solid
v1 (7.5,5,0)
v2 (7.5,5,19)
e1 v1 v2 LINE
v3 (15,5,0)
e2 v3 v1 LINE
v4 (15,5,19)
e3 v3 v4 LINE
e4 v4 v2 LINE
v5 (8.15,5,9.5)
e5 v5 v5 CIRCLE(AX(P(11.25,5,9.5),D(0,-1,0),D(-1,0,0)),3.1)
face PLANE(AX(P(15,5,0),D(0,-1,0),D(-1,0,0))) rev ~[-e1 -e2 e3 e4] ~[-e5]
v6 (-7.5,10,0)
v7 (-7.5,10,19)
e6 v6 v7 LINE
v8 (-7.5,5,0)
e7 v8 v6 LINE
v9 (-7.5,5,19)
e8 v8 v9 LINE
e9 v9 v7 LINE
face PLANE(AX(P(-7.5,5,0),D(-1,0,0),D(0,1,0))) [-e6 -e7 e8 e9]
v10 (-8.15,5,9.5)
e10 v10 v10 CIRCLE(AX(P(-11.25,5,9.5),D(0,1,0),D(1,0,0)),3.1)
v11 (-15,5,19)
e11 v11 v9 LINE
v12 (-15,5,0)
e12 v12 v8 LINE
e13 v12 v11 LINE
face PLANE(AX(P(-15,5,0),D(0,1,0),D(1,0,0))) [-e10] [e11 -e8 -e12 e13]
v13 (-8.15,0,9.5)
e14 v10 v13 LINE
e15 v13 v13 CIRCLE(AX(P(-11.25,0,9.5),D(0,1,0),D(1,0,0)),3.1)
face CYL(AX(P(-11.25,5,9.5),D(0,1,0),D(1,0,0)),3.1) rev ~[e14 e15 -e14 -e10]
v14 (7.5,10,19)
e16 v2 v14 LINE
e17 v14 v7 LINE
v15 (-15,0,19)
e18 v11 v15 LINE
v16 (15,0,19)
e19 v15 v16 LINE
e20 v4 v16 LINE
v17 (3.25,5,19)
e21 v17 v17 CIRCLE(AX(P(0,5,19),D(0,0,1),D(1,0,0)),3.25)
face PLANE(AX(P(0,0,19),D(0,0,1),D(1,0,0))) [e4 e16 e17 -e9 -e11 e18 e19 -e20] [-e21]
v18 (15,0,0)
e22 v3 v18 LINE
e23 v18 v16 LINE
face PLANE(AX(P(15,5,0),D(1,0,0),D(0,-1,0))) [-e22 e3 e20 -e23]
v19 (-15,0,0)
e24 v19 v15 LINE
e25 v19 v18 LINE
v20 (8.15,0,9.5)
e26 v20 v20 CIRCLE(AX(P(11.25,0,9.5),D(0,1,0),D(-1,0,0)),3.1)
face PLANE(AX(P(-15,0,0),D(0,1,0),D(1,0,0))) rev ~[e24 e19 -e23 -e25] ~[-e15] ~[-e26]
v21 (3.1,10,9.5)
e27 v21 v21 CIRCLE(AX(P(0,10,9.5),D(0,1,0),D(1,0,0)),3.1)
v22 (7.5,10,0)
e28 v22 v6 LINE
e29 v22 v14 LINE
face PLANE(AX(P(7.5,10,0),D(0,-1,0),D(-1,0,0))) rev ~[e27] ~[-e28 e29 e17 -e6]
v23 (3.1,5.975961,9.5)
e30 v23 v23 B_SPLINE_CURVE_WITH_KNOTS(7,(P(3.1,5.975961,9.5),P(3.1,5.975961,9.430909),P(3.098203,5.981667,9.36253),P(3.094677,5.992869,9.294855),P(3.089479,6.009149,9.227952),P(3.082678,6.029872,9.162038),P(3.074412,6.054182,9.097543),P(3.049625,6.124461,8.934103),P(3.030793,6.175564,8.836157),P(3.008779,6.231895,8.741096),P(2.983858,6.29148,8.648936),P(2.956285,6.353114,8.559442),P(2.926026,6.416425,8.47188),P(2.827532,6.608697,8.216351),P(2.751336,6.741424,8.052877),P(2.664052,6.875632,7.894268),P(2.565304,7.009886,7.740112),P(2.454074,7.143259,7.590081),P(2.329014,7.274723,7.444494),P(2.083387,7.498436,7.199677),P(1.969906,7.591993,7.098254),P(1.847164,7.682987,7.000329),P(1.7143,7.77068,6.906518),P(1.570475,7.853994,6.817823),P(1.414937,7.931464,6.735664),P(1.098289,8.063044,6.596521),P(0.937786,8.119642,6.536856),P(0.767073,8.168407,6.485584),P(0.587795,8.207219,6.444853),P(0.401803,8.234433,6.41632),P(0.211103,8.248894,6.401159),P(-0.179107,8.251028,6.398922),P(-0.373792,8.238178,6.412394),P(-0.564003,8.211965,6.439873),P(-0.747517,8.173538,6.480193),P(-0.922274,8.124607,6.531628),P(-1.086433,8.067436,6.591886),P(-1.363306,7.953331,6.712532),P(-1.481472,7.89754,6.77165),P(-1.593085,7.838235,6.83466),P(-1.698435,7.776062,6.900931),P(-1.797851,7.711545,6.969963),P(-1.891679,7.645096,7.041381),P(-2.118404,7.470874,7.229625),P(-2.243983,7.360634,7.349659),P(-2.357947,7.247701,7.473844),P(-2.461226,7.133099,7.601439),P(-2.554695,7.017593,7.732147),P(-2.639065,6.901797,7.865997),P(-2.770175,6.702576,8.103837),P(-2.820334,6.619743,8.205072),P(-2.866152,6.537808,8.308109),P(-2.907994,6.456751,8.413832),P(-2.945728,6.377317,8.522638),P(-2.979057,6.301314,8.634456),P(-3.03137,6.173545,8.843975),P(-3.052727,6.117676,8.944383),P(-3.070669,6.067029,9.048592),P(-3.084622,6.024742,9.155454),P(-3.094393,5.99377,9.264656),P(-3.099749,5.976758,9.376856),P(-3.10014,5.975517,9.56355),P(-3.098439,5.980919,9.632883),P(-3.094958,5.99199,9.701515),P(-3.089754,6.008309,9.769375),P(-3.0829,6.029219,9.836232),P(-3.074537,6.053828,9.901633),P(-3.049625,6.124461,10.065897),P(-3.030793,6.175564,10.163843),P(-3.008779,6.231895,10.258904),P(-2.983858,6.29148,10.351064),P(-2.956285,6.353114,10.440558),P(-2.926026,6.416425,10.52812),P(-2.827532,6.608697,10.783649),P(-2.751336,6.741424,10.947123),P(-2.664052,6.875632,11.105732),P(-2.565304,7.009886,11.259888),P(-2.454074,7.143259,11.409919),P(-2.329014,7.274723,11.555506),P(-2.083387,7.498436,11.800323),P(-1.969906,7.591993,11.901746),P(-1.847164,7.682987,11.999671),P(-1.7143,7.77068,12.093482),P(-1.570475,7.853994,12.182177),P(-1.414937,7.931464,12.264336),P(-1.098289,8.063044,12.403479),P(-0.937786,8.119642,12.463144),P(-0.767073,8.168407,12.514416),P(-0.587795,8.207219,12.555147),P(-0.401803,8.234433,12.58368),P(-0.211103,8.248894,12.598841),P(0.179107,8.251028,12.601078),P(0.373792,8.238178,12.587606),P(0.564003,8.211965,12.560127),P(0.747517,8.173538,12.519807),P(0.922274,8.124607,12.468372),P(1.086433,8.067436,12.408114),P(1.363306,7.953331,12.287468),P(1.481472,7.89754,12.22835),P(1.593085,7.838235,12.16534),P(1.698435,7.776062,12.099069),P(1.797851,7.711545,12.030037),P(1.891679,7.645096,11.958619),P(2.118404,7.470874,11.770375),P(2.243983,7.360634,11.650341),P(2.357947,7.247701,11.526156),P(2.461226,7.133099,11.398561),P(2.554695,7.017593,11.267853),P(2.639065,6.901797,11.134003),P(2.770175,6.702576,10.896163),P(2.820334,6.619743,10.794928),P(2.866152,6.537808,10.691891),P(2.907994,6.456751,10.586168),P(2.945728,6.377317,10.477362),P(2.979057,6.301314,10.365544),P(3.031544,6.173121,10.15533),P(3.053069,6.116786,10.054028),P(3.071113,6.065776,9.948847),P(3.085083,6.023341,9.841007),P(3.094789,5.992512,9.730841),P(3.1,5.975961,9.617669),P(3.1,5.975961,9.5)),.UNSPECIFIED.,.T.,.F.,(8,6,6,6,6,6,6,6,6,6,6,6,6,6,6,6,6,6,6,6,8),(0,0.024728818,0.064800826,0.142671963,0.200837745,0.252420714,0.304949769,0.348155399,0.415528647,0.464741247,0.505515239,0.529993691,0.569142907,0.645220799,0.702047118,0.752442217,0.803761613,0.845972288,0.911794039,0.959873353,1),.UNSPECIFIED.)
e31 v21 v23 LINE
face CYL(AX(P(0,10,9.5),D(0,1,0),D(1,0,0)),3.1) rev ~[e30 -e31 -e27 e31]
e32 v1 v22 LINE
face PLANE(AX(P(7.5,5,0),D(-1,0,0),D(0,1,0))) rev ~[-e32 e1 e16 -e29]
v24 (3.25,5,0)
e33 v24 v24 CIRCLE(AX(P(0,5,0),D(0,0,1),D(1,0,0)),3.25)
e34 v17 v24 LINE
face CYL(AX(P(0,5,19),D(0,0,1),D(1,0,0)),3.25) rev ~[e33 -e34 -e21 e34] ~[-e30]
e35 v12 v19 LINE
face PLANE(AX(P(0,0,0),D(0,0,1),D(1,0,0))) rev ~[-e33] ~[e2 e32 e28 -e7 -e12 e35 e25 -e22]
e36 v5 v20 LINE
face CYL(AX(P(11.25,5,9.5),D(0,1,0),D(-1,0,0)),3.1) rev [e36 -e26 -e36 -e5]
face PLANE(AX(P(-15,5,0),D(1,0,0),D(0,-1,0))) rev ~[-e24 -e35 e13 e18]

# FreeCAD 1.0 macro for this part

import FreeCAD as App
import Part
import Sketcher
from FreeCAD import Vector


def add_polygon(sketch, points):
    """Adds a closed chain of lines whose ends are joined by coincident constraints."""
    first, n = sketch.GeometryCount, len(points)
    for a, b in zip(points, points[1:] + points[:1]):
        sketch.addGeometry(Part.LineSegment(App.Vector(*a, 0), App.Vector(*b, 0)), False)
    for i in range(n):
        sketch.addConstraint(Sketcher.Constraint("Coincident", first + i, 2, first + (i + 1) % n, 1))

doc = App.newDocument("Part")
params = doc.addObject("Spreadsheet::Sheet", "Params")
for row, (alias, value) in enumerate([
    ("sketch1_width", "30 mm"),
    ("sketch1_width2", "15 mm"),
    ("sketch1_height", "5 mm"),
    ("pad1_length", "19 mm"),
    ("sketch2_diameter", "6.2 mm"),
    ("sketch3_diameter", "6.5 mm"),
    ("sketch4_diameter", "6.2 mm"),
], start=1):
    params.set(f"A{row}", alias)
    params.set(f"B{row}", "=" + value)
    params.setAlias(f"B{row}", alias)

body = doc.addObject("PartDesign::Body", "Body")

# Sketch on XY plane
sketch1 = body.newObject("Sketcher::SketchObject", "Sketch")
sketch1.AttachmentSupport = (doc.getObject("XY_Plane"), [""])
sketch1.MapMode = "FlatFace"
add_polygon(sketch1, [(-15, 5), (-15, 0), (15, 0), (15, 5), (7.5, 5), (7.5, 10), (-7.5, 10), (-7.5, 5)])  # lines 0-7
sketch1.addConstraint([
    Sketcher.Constraint("Vertical", 0),
    Sketcher.Constraint("Horizontal", 1),
    Sketcher.Constraint("Vertical", 2),
    Sketcher.Constraint("Horizontal", 3),
    Sketcher.Constraint("Vertical", 4),
    Sketcher.Constraint("Horizontal", 5),
    Sketcher.Constraint("Vertical", 6),
    Sketcher.Constraint("Horizontal", 7),
    Sketcher.Constraint("Symmetric", 0, 2, 1, 2, -1, 1),
    Sketcher.Constraint("Symmetric", 3, 2, 6, 2, -2),
    Sketcher.Constraint("Equal", 2, 4),
    Sketcher.Constraint("DistanceX", 1, 1, 1, 2, 30.0),
    Sketcher.Constraint("DistanceX", 5, 2, 5, 1, 15.0),
    Sketcher.Constraint("DistanceY", 0, 2, 0, 1, 5.0),
])
sketch1.setExpression("Constraints[19]", "Params.sketch1_width")
sketch1.setExpression("Constraints[20]", "Params.sketch1_width2")
sketch1.setExpression("Constraints[21]", "Params.sketch1_height")
pad1 = body.newObject("PartDesign::Pad", "Pad")
pad1.Profile = sketch1
pad1.setExpression("Length", "Params.pad1_length")

# Sketch on XZ plane
sketch2 = body.newObject("Sketcher::SketchObject", "Sketch001")
sketch2.AttachmentSupport = (doc.getObject("XZ_Plane"), [""])
sketch2.MapMode = "FlatFace"
sketch2.AttachmentOffset = App.Placement(Vector(0, 0, -5), App.Rotation())
sketch2.addGeometry(Part.Circle(Vector(-11.25, 9.5, 0), Vector(0, 0, 1), 3.1), False)
sketch2.addConstraint([
    Sketcher.Constraint("Diameter", 0, 6.2),
    Sketcher.Constraint("DistanceY", -1, 1, 0, 3, 9.5),
    Sketcher.Constraint("DistanceX", 0, 3, -1, 1, 11.25),
])
sketch2.setExpression("Constraints[0]", "Params.sketch2_diameter")
pocket1 = body.newObject("PartDesign::Pocket", "Pocket")
pocket1.Profile = sketch2
pocket1.Type = "ThroughAll"
pocket1.Reversed = True
doc.recompute()

mirrored = body.newObject("PartDesign::Mirrored", "Mirrored")
mirrored.Originals = [pocket1]
mirrored.MirrorPlane = (doc.getObject("YZ_Plane"), [""])
body.Tip = mirrored

# Sketch on XY plane
sketch3 = body.newObject("Sketcher::SketchObject", "Sketch002")
sketch3.AttachmentSupport = (doc.getObject("XY_Plane"), [""])
sketch3.MapMode = "FlatFace"
sketch3.AttachmentOffset = App.Placement(Vector(0, 0, 19), App.Rotation())
sketch3.addGeometry(Part.Circle(Vector(0, 5, 0), Vector(0, 0, 1), 3.25), False)
sketch3.addConstraint([
    Sketcher.Constraint("PointOnObject", 0, 3, -2),
    Sketcher.Constraint("Diameter", 0, 6.5),
    Sketcher.Constraint("DistanceY", -1, 1, 0, 3, 5.0),
])
sketch3.setExpression("Constraints[1]", "Params.sketch3_diameter")
pocket2 = body.newObject("PartDesign::Pocket", "Pocket001")
pocket2.Profile = sketch3
pocket2.Type = "ThroughAll"

# Sketch on XZ plane
sketch4 = body.newObject("Sketcher::SketchObject", "Sketch003")
sketch4.AttachmentSupport = (doc.getObject("XZ_Plane"), [""])
sketch4.MapMode = "FlatFace"
sketch4.AttachmentOffset = App.Placement(Vector(0, 0, -10), App.Rotation())
sketch4.addGeometry(Part.Circle(Vector(0, 9.5, 0), Vector(0, 0, 1), 3.1), False)
sketch4.addConstraint([
    Sketcher.Constraint("PointOnObject", 0, 3, -2),
    Sketcher.Constraint("Diameter", 0, 6.2),
    Sketcher.Constraint("DistanceY", -1, 1, 0, 3, 9.5),
])
sketch4.setExpression("Constraints[1]", "Params.sketch4_diameter")
pocket3 = body.newObject("PartDesign::Pocket", "Pocket002")
pocket3.Profile = sketch4
pocket3.Type = "UpToFirst"
pocket3.Reversed = True

doc.recompute()
